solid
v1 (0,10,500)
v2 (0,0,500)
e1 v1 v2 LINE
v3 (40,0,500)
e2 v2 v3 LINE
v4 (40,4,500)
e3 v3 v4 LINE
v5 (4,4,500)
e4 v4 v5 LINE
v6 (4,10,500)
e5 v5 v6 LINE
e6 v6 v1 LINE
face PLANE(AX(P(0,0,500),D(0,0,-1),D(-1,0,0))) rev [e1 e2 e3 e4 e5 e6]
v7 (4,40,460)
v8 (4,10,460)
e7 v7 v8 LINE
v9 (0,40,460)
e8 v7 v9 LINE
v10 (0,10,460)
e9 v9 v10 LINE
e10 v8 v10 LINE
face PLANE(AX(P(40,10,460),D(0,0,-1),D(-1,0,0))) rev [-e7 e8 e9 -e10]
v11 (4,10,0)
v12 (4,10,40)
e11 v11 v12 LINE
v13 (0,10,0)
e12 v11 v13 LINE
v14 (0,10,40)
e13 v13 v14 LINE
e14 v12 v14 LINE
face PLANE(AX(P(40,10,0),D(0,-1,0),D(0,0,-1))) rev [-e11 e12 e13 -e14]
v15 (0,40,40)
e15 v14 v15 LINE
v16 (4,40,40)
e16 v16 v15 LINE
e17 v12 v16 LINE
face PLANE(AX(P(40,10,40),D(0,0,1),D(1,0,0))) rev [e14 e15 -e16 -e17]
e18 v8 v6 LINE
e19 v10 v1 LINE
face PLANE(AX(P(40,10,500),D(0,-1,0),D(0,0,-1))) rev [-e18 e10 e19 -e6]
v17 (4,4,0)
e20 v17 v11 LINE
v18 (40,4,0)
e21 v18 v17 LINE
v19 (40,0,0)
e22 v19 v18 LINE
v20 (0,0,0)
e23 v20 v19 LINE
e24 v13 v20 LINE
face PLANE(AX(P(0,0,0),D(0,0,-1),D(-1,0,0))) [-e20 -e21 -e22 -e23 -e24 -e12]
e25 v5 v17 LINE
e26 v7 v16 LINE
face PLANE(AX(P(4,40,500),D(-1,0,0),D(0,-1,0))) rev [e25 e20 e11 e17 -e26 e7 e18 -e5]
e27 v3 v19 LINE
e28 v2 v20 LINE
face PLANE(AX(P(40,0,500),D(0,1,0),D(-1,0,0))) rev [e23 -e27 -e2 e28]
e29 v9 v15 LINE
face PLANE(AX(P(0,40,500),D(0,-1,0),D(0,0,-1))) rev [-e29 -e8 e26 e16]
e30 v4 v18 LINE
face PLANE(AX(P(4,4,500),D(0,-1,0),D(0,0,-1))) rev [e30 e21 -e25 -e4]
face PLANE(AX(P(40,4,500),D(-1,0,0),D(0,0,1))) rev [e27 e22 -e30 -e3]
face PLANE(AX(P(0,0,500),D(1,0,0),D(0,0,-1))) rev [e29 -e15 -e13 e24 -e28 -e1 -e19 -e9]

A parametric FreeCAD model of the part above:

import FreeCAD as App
import Part
import Sketcher

V = App.Vector


def add_polygon(sketch, points):
    """Adds a closed chain of lines whose ends are joined by coincident constraints."""
    first, n = sketch.GeometryCount, len(points)
    for a, b in zip(points, points[1:] + points[:1]):
        sketch.addGeometry(Part.LineSegment(App.Vector(*a, 0), App.Vector(*b, 0)), False)
    for i in range(n):
        sketch.addConstraint(Sketcher.Constraint("Coincident", first + i, 2, first + (i + 1) % n, 1))

doc = App.newDocument("Part")
body = doc.addObject("PartDesign::Body", "Body")

sketch1 = doc.addObject("Sketcher::SketchObject", "Sketch")
body.addObject(sketch1)
sketch1.AttachmentSupport = (doc.XY_Plane, [""])
sketch1.MapMode = "FlatFace"
add_polygon(sketch1, [(0, 40), (0, 0), (40, 0), (40, 4), (4, 4), (4, 40)])
sketch1.addConstraint(Sketcher.Constraint("Vertical", 0))
sketch1.addConstraint(Sketcher.Constraint("Horizontal", 1))
sketch1.addConstraint(Sketcher.Constraint("Vertical", 2))
sketch1.addConstraint(Sketcher.Constraint("Horizontal", 3))
sketch1.addConstraint(Sketcher.Constraint("Vertical", 4))
sketch1.addConstraint(Sketcher.Constraint("Horizontal", 5))
sketch1.addConstraint(Sketcher.Constraint("Coincident", 0, 2, -1, 1))
sketch1.addConstraint(Sketcher.Constraint("Equal", 1, 0))
sketch1.addConstraint(Sketcher.Constraint("Equal", 5, 2))
sketch1.addConstraint(Sketcher.Constraint("DistanceX", 1, 1, 1, 2, 40.0))
sketch1.addConstraint(Sketcher.Constraint("DistanceX", 3, 2, 3, 1, 36.0))
pad1 = doc.addObject("PartDesign::Pad", "Pad")
body.addObject(pad1)
pad1.Profile = sketch1
pad1.Length = 500

sketch2 = doc.addObject("Sketcher::SketchObject", "Sketch001")
body.addObject(sketch2)
sketch2.AttachmentSupport = (doc.YZ_Plane, [""])
sketch2.MapMode = "FlatFace"
add_polygon(sketch2, [(40, 0), (10, 0), (10, 40), (40, 40)])
sketch2.addConstraint(Sketcher.Constraint("Horizontal", 0))
sketch2.addConstraint(Sketcher.Constraint("Vertical", 1))
sketch2.addConstraint(Sketcher.Constraint("Horizontal", 2))
sketch2.addConstraint(Sketcher.Constraint("Vertical", 3))
sketch2.addConstraint(Sketcher.Constraint("PointOnObject", 0, 2, -1))
sketch2.addConstraint(Sketcher.Constraint("DistanceX", 0, 2, 0, 1, 30.0))
sketch2.addConstraint(Sketcher.Constraint("DistanceY", 1, 1, 1, 2, 40.0))
sketch2.addConstraint(Sketcher.Constraint("DistanceX", -1, 1, 0, 2, 10.0))
pocket1 = doc.addObject("PartDesign::Pocket", "Pocket")
body.addObject(pocket1)
pocket1.Profile = sketch2
pocket1.Type = "ThroughAll"
pocket1.Reversed = True

sketch3 = doc.addObject("Sketcher::SketchObject", "Sketch002")
body.addObject(sketch3)
sketch3.AttachmentSupport = (doc.YZ_Plane, [""])
sketch3.MapMode = "FlatFace"
add_polygon(sketch3, [(40, 460), (10, 460), (10, 500), (40, 500)])
sketch3.addConstraint(Sketcher.Constraint("Horizontal", 0))
sketch3.addConstraint(Sketcher.Constraint("Vertical", 1))
sketch3.addConstraint(Sketcher.Constraint("Horizontal", 2))
sketch3.addConstraint(Sketcher.Constraint("Vertical", 3))
sketch3.addConstraint(Sketcher.Constraint("DistanceX", 0, 2, 0, 1, 30.0))
sketch3.addConstraint(Sketcher.Constraint("DistanceY", 1, 1, 1, 2, 40.0))
sketch3.addConstraint(Sketcher.Constraint("DistanceX", -1, 1, 0, 2, 10.0))
sketch3.addConstraint(Sketcher.Constraint("DistanceY", -1, 1, 0, 2, 460.0))
pocket2 = doc.addObject("PartDesign::Pocket", "Pocket001")
body.addObject(pocket2)
pocket2.Profile = sketch3
pocket2.Type = "ThroughAll"
pocket2.Reversed = True

doc.recompute()
